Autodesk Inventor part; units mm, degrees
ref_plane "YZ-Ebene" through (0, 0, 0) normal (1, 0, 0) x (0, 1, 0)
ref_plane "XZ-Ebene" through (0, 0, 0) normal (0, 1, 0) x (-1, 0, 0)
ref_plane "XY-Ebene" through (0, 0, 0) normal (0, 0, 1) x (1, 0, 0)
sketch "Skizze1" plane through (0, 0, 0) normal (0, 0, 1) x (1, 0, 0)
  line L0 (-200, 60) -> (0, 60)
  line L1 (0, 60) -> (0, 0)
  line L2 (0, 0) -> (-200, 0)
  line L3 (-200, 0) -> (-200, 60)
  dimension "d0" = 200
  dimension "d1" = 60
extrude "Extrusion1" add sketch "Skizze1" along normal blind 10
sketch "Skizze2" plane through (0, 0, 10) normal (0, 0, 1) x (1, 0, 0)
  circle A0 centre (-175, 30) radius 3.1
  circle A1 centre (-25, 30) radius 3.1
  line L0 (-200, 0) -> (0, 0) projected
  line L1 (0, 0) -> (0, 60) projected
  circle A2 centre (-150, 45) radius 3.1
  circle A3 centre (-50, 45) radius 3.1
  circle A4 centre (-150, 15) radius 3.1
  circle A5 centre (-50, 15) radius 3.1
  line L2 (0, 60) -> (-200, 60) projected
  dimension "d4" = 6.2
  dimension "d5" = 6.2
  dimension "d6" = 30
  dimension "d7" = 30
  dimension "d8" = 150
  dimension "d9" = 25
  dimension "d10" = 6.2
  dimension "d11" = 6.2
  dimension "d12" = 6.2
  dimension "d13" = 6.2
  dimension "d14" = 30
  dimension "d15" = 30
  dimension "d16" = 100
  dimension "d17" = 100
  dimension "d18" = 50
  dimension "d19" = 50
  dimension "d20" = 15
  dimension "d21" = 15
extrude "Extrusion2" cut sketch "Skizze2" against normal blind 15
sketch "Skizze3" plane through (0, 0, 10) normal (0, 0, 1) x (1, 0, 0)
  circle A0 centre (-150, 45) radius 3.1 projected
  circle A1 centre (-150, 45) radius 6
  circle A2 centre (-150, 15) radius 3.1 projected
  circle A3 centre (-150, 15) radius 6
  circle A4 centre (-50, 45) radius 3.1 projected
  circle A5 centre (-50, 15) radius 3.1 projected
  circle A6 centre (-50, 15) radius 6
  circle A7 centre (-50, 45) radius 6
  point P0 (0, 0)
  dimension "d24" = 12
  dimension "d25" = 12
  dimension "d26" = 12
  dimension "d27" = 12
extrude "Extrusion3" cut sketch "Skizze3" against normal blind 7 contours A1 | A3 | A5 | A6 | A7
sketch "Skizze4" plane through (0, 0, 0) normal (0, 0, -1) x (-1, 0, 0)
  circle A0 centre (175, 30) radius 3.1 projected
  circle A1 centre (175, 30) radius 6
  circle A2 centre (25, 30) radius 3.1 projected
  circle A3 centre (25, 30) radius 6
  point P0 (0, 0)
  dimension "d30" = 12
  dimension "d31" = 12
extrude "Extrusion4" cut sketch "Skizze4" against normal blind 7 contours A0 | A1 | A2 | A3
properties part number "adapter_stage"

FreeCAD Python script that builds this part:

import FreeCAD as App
import Part
import Sketcher


def add_polygon(sketch, points):
    """Adds a closed chain of lines whose ends are joined by coincident constraints."""
    first, n = sketch.GeometryCount, len(points)
    for a, b in zip(points, points[1:] + points[:1]):
        sketch.addGeometry(Part.LineSegment(App.Vector(*a, 0), App.Vector(*b, 0)), False)
    for i in range(n):
        sketch.addConstraint(Sketcher.Constraint("Coincident", first + i, 2, first + (i + 1) % n, 1))

doc = App.newDocument("Part")
body = doc.addObject("PartDesign::Body", "Body")

sketch1 = body.newObject("Sketcher::SketchObject", "Sketch")
sketch1.AttachmentSupport = (doc.getObject("XY_Plane"), [""])
sketch1.MapMode = "FlatFace"
add_polygon(sketch1, [(0, 60), (-200, 60), (-200, 0), (0, 0)])
sketch1.addConstraint(Sketcher.Constraint("Horizontal", 0))
sketch1.addConstraint(Sketcher.Constraint("Vertical", 1))
sketch1.addConstraint(Sketcher.Constraint("Horizontal", 2))
sketch1.addConstraint(Sketcher.Constraint("Vertical", 3))
sketch1.addConstraint(Sketcher.Constraint("Coincident", 2, 2, -1, 1))
sketch1.addConstraint(Sketcher.Constraint("DistanceX", 0, 2, 0, 1, 200.0))
sketch1.addConstraint(Sketcher.Constraint("DistanceY", 1, 2, 1, 1, 60.0))
pad1 = body.newObject("PartDesign::Pad", "Pad")
pad1.Profile = sketch1
pad1.Length = 10

sketch2 = body.newObject("Sketcher::SketchObject", "Sketch001")
sketch2.AttachmentSupport = (doc.getObject("XY_Plane"), [""])
sketch2.MapMode = "FlatFace"
sketch2.AttachmentOffset = App.Placement(App.Vector(0, 0, 10), App.Rotation())
sketch2.addGeometry(Part.Circle(App.Vector(-175, 30, 0), App.Vector(0, 0, 1), 3.1), False)
sketch2.addGeometry(Part.Circle(App.Vector(-25, 30, 0), App.Vector(0, 0, 1), 3.1), False)
sketch2.addGeometry(Part.Circle(App.Vector(-150, 45, 0), App.Vector(0, 0, 1), 3.1), False)
sketch2.addGeometry(Part.Circle(App.Vector(-50, 45, 0), App.Vector(0, 0, 1), 3.1), False)
sketch2.addGeometry(Part.Circle(App.Vector(-150, 15, 0), App.Vector(0, 0, 1), 3.1), False)
sketch2.addGeometry(Part.Circle(App.Vector(-50, 15, 0), App.Vector(0, 0, 1), 3.1), False)
sketch2.addConstraint(Sketcher.Constraint("Equal", 0, 1))
sketch2.addConstraint(Sketcher.Constraint("Equal", 1, 2))
sketch2.addConstraint(Sketcher.Constraint("Equal", 2, 3))
sketch2.addConstraint(Sketcher.Constraint("Equal", 3, 4))
sketch2.addConstraint(Sketcher.Constraint("Equal", 4, 5))
sketch2.addConstraint(Sketcher.Constraint("Horizontal", 0, 3, 1, 3))
sketch2.addConstraint(Sketcher.Constraint("Horizontal", 2, 3, 3, 3))
sketch2.addConstraint(Sketcher.Constraint("Horizontal", 4, 3, 5, 3))
sketch2.addConstraint(Sketcher.Constraint("Vertical", 2, 3, 4, 3))
sketch2.addConstraint(Sketcher.Constraint("Vertical", 3, 3, 5, 3))
sketch2.addConstraint(Sketcher.Constraint("Diameter", 0, 6.2))
sketch2.addConstraint(Sketcher.Constraint("DistanceY", -1, 1, 0, 3, 30.0))
sketch2.addConstraint(Sketcher.Constraint("DistanceX", 1, 3, -1, 1, 25.0))
sketch2.addConstraint(Sketcher.Constraint("DistanceX", 2, 3, -1, 1, 150.0))
sketch2.addConstraint(Sketcher.Constraint("DistanceX", 3, 3, -1, 1, 50.0))
sketch2.addConstraint(Sketcher.Constraint("DistanceY", -1, 1, 4, 3, 15.0))
sketch2.addConstraint(Sketcher.Constraint("DistanceX", 0, 3, 1, 3, 150.0))
sketch2.addConstraint(Sketcher.Constraint("DistanceY", 0, 3, 2, 3, 15.0))
pocket1 = body.newObject("PartDesign::Pocket", "Pocket")
pocket1.Profile = sketch2
pocket1.Length = 15

sketch3 = body.newObject("Sketcher::SketchObject", "Sketch002")
sketch3.AttachmentSupport = (doc.getObject("XY_Plane"), [""])
sketch3.MapMode = "FlatFace"
sketch3.AttachmentOffset = App.Placement(App.Vector(0, 0, 10), App.Rotation())
sketch3.addGeometry(Part.Circle(App.Vector(-150, 45, 0), App.Vector(0, 0, 1), 6), False)
sketch3.addGeometry(Part.Circle(App.Vector(-150, 45, 0), App.Vector(0, 0, 1), 3.1), False)
sketch3.addGeometry(Part.Circle(App.Vector(-150, 15, 0), App.Vector(0, 0, 1), 6), False)
sketch3.addGeometry(Part.Circle(App.Vector(-150, 15, 0), App.Vector(0, 0, 1), 3.1), False)
sketch3.addGeometry(Part.Circle(App.Vector(-50, 15, 0), App.Vector(0, 0, 1), 6), False)
sketch3.addGeometry(Part.Circle(App.Vector(-50, 45, 0), App.Vector(0, 0, 1), 6), False)
sketch3.addGeometry(Part.Circle(App.Vector(-50, 45, 0), App.Vector(0, 0, 1), 3.1), False)
sketch3.addConstraint(Sketcher.Constraint("Coincident", 1, 3, 0, 3))
sketch3.addConstraint(Sketcher.Constraint("Coincident", 3, 3, 2, 3))
sketch3.addConstraint(Sketcher.Constraint("Coincident", 6, 3, 5, 3))
sketch3.addConstraint(Sketcher.Constraint("Equal", 0, 2))
sketch3.addConstraint(Sketcher.Constraint("Equal", 1, 3))
sketch3.addConstraint(Sketcher.Constraint("Equal", 2, 4))
sketch3.addConstraint(Sketcher.Constraint("Equal", 4, 5))
sketch3.addConstraint(Sketcher.Constraint("Equal", 3, 6))
sketch3.addConstraint(Sketcher.Constraint("Horizontal", 3, 3, 4, 3))
sketch3.addConstraint(Sketcher.Constraint("Horizontal", 1, 3, 5, 3))
sketch3.addConstraint(Sketcher.Constraint("Vertical", 1, 3, 2, 3))
sketch3.addConstraint(Sketcher.Constraint("Vertical", 4, 3, 5, 3))
sketch3.addConstraint(Sketcher.Constraint("Diameter", 0, 12.0))
sketch3.addConstraint(Sketcher.Constraint("Diameter", 1, 6.2))
sketch3.addConstraint(Sketcher.Constraint("DistanceX", 0, 3, -1, 1, 150.0))
sketch3.addConstraint(Sketcher.Constraint("DistanceY", -1, 1, 0, 3, 45.0))
sketch3.addConstraint(Sketcher.Constraint("DistanceY", -1, 1, 2, 3, 15.0))
sketch3.addConstraint(Sketcher.Constraint("DistanceX", 4, 3, -1, 1, 50.0))
pocket2 = body.newObject("PartDesign::Pocket", "Pocket001")
pocket2.Profile = sketch3
pocket2.Length = 7

sketch4 = body.newObject("Sketcher::SketchObject", "Sketch003")
sketch4.AttachmentSupport = (doc.getObject("XY_Plane"), [""])
sketch4.MapMode = "FlatFace"
sketch4.addGeometry(Part.Circle(App.Vector(-175, 30, 0), App.Vector(0, 0, 1), 6), False)
sketch4.addGeometry(Part.Circle(App.Vector(-25, 30, 0), App.Vector(0, 0, 1), 6), False)
sketch4.addConstraint(Sketcher.Constraint("Equal", 0, 1))
sketch4.addConstraint(Sketcher.Constraint("Horizontal", 0, 3, 1, 3))
sketch4.addConstraint(Sketcher.Constraint("Diameter", 0, 12.0))
sketch4.addConstraint(Sketcher.Constraint("DistanceX", 0, 3, -1, 1, 175.0))
sketch4.addConstraint(Sketcher.Constraint("DistanceY", -1, 1, 0, 3, 30.0))
sketch4.addConstraint(Sketcher.Constraint("DistanceX", 1, 3, -1, 1, 25.0))
pocket3 = body.newObject("PartDesign::Pocket", "Pocket002")
pocket3.Profile = sketch4
pocket3.Length = 7
pocket3.Reversed = True

doc.recompute()
